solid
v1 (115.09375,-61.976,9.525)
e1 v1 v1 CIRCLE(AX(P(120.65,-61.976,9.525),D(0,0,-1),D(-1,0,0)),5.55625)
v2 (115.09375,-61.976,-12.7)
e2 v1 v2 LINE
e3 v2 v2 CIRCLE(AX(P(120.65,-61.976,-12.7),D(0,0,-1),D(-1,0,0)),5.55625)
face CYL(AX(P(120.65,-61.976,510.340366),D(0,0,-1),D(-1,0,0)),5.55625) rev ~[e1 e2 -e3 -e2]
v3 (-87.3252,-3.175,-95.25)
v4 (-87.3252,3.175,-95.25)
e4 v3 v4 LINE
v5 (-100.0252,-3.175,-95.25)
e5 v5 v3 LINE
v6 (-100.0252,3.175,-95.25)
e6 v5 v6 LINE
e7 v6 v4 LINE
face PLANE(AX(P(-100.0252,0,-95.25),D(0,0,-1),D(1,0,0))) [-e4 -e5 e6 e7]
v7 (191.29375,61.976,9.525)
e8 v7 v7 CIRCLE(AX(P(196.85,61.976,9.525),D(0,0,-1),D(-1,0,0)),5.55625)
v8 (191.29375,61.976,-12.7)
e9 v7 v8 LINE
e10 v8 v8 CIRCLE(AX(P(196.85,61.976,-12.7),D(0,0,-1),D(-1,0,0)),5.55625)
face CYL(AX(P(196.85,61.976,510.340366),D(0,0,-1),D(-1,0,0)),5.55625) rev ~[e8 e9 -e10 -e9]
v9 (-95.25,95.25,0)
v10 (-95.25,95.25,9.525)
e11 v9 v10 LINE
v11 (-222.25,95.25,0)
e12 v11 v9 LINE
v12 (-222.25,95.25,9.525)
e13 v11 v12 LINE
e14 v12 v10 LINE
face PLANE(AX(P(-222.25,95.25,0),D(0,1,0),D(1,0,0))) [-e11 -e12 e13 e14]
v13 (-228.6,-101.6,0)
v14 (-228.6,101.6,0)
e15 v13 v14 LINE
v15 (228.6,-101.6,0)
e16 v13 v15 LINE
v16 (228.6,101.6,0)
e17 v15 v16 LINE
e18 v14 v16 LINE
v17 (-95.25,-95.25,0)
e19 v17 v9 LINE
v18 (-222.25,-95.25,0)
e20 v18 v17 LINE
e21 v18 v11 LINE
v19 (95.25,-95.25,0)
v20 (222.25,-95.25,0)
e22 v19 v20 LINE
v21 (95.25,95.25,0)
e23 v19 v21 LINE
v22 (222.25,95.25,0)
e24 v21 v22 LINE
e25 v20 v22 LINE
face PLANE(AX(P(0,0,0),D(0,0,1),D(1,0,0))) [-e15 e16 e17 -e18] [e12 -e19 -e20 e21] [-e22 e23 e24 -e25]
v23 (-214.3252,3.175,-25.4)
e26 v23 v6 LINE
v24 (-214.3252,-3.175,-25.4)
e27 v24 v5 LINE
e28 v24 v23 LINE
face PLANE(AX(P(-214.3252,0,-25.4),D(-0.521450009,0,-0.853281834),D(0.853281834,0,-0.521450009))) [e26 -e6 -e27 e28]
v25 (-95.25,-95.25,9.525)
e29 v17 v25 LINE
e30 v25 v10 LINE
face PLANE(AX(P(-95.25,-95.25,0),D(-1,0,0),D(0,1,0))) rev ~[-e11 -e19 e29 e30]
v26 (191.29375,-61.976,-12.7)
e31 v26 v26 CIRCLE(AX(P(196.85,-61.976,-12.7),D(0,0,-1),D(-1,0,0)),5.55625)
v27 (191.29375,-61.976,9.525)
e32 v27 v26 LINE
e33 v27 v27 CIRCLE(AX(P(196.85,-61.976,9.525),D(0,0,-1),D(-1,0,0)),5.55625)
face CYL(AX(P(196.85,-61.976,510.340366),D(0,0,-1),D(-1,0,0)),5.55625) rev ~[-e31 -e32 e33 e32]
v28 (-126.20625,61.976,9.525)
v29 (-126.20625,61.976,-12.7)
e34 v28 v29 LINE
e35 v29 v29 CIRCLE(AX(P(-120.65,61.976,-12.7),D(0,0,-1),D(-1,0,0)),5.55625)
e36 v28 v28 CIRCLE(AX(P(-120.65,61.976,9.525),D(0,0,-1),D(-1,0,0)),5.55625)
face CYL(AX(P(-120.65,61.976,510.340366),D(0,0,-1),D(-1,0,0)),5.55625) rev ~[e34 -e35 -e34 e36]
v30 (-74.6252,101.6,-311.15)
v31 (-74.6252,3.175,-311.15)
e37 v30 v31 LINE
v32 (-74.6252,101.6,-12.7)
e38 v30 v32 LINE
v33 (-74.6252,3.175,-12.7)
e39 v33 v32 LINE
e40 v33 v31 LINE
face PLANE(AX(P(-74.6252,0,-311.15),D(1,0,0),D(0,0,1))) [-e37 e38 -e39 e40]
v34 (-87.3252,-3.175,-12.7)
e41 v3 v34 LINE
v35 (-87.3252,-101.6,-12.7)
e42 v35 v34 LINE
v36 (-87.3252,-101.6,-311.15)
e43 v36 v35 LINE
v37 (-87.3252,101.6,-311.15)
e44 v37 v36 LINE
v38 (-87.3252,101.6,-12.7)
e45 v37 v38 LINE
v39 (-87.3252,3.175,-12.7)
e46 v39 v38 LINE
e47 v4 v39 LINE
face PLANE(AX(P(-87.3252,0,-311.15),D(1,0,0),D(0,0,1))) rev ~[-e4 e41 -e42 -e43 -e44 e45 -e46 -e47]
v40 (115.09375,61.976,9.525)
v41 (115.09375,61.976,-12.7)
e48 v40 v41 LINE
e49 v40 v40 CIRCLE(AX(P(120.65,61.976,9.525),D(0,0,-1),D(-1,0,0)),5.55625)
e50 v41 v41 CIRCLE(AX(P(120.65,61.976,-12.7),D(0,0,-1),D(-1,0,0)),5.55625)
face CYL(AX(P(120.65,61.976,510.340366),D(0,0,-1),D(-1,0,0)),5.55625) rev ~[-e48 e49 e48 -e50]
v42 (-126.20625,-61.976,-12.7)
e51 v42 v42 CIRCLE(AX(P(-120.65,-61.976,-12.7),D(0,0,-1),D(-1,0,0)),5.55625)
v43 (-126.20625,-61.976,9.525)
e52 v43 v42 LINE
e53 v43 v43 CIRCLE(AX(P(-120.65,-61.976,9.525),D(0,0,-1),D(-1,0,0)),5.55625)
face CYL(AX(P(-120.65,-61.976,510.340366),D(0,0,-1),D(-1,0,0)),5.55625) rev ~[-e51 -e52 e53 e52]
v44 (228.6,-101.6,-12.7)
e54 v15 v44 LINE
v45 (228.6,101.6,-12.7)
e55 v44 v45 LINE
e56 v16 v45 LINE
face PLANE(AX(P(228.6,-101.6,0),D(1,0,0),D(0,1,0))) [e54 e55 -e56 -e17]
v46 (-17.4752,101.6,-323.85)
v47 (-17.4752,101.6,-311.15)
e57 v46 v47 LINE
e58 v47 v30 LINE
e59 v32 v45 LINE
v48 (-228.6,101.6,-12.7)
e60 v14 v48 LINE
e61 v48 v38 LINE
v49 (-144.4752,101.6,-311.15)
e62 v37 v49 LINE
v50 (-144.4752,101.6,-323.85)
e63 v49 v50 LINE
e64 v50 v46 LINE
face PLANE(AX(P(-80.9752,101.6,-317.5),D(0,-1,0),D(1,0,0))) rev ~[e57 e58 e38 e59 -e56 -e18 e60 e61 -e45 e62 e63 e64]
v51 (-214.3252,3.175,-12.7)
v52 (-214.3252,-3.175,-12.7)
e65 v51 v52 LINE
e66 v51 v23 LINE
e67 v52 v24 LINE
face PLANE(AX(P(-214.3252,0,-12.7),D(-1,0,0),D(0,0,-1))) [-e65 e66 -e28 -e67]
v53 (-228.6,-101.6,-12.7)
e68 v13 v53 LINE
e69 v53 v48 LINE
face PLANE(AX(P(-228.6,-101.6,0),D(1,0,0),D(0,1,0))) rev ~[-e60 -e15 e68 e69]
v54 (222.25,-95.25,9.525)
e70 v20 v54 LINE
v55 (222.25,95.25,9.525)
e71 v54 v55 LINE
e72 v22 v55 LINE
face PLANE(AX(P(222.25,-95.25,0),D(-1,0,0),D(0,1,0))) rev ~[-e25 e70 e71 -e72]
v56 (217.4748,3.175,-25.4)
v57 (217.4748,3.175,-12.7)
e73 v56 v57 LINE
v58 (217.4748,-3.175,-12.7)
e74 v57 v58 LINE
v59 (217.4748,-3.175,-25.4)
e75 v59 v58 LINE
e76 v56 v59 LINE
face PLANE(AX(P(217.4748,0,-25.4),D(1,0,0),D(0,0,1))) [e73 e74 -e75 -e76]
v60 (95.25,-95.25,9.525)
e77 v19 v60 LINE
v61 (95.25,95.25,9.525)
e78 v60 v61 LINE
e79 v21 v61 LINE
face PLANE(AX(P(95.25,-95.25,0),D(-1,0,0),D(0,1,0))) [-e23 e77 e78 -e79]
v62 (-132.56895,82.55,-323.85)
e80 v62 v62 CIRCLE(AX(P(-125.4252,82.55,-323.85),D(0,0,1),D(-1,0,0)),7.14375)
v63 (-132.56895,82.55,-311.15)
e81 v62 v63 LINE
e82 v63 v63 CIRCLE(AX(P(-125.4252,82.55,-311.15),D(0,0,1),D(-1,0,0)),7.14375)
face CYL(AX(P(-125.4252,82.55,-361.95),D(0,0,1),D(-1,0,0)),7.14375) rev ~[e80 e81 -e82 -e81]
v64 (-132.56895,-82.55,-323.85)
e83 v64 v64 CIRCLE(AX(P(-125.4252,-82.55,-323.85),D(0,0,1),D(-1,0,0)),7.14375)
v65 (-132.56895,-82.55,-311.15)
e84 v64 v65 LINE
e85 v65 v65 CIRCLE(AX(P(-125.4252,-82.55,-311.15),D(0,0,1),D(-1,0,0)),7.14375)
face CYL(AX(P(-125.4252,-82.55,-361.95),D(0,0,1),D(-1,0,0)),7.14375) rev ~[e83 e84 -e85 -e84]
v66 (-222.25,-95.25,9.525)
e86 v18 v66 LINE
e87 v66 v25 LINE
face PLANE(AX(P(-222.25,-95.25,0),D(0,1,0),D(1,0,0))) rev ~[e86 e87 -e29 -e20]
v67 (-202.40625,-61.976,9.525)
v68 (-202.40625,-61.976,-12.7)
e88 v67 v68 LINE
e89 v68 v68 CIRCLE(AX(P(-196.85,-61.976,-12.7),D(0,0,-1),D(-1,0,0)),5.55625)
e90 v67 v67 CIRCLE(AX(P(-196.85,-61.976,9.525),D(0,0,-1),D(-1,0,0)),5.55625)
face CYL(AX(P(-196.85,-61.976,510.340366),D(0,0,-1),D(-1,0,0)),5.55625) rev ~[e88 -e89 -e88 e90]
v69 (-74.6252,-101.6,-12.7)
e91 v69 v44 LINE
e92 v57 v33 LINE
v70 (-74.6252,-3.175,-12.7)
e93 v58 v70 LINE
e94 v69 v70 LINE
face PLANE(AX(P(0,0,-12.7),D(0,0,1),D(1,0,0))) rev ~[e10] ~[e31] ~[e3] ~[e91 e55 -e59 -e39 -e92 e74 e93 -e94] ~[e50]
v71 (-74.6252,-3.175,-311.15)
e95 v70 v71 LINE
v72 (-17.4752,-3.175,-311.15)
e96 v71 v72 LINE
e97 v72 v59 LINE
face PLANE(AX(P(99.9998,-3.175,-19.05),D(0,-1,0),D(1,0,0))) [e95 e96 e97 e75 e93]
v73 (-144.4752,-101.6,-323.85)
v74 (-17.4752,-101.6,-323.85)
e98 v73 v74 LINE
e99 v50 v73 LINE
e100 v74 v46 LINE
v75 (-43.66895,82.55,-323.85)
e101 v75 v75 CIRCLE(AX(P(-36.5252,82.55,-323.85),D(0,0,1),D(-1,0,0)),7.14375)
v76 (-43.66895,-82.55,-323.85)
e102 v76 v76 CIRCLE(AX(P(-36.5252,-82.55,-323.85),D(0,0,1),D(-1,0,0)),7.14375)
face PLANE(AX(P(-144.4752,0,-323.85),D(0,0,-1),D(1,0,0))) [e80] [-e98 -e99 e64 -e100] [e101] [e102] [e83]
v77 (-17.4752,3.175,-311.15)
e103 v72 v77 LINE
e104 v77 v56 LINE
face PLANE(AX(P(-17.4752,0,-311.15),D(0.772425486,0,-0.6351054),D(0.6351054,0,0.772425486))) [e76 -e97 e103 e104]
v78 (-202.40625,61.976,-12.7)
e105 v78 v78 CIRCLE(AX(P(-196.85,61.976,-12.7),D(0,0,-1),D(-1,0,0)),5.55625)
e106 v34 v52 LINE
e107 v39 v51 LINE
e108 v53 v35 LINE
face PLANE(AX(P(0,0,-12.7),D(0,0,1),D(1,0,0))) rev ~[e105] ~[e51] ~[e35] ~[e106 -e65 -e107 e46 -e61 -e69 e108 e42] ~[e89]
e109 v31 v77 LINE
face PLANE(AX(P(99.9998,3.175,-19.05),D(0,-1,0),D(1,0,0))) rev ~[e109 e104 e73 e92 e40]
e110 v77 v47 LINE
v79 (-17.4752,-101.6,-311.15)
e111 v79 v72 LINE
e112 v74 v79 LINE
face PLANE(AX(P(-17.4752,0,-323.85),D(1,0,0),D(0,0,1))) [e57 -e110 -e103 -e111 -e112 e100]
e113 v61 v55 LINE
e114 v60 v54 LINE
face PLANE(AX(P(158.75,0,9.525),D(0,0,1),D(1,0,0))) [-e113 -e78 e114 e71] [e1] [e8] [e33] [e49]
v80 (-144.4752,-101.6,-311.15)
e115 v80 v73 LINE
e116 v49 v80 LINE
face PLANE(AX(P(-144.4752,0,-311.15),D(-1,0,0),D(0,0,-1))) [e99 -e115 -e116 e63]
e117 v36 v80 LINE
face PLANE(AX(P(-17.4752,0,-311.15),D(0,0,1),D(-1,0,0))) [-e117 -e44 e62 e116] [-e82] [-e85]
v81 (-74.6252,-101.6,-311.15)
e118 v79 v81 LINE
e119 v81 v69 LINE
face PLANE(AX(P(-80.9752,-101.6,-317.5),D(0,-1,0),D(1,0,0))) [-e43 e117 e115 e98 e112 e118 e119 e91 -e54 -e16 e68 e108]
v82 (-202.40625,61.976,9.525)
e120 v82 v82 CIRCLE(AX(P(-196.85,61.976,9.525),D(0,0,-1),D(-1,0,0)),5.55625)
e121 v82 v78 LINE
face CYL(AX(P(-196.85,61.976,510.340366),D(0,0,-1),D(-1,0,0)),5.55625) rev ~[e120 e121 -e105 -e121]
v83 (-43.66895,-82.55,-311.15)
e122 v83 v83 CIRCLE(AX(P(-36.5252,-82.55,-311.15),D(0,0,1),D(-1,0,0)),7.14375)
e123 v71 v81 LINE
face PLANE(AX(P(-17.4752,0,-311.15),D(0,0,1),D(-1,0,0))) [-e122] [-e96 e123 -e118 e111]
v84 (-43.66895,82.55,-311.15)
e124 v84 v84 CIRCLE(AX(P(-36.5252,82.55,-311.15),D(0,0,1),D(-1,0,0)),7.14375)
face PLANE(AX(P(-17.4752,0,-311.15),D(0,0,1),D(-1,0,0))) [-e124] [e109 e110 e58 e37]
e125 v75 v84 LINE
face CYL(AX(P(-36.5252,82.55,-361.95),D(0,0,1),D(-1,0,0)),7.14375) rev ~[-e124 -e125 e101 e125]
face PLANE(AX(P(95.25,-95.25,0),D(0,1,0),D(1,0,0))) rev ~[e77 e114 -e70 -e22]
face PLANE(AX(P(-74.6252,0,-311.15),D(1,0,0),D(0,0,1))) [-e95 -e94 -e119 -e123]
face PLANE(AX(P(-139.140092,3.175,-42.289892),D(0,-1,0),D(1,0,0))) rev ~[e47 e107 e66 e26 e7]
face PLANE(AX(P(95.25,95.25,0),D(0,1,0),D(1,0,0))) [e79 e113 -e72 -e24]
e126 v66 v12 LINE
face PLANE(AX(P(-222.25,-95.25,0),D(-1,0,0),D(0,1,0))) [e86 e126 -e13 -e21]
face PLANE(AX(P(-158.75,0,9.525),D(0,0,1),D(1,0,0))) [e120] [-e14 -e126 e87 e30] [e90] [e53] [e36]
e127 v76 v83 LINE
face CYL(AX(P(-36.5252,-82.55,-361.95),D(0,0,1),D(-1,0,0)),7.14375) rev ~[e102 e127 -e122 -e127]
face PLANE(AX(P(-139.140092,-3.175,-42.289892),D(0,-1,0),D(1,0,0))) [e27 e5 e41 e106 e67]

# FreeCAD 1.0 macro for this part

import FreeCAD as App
import Part
import Sketcher
from FreeCAD import Vector
Q = App.Units.Quantity

doc = App.newDocument("Part")
body = doc.addObject("PartDesign::Body", "Body")

sketch1 = body.newObject("Sketcher::SketchObject", "Sketch")
sketch1.AttachmentSupport = (doc.getObject("XY_Plane"), [""])
sketch1.MapMode = "FlatFace"
sketch1.addGeometry([
    Part.LineSegment(Vector(-229, 102, 0), Vector(-229, -102, 0)),
    Part.LineSegment(Vector(-229, -102, 0), Vector(229, -102, 0)),
    Part.LineSegment(Vector(229, -102, 0), Vector(229, 102, 0)),
    Part.LineSegment(Vector(229, 102, 0), Vector(-229, 102, 0)),
], False)
sketch1.addConstraint([
    Sketcher.Constraint("Coincident", 0, 2, 1, 1),
    Sketcher.Constraint("Coincident", 1, 2, 2, 1),
    Sketcher.Constraint("Coincident", 2, 2, 3, 1),
    Sketcher.Constraint("Coincident", 3, 2, 0, 1),
    Sketcher.Constraint("Vertical", 0),
    Sketcher.Constraint("Horizontal", 1),
    Sketcher.Constraint("Vertical", 2),
    Sketcher.Constraint("Horizontal", 3),
    Sketcher.Constraint("Symmetric", 0, 2, 2, 2, -1, 1),
    Sketcher.Constraint("DistanceX", 1, 1, 1, 2, Q("18 in")),
    Sketcher.Constraint("DistanceY", 0, 2, 0, 1, Q("8 in")),
])
pad1 = body.newObject("PartDesign::Pad", "Pad")
pad1.Profile = sketch1
pad1.Length = Q("0.5 in")
pad1.Reversed = True

sketch2 = body.newObject("Sketcher::SketchObject", "Sketch001")
sketch2.AttachmentSupport = (doc.getObject("XY_Plane"), [""])
sketch2.MapMode = "FlatFace"
sketch2.addGeometry([
    Part.LineSegment(Vector(95, 95, 0), Vector(95, -95, 0)),
    Part.LineSegment(Vector(95, -95, 0), Vector(222, -95, 0)),
    Part.LineSegment(Vector(222, -95, 0), Vector(222, 95, 0)),
    Part.LineSegment(Vector(222, 95, 0), Vector(95, 95, 0)),
    Part.LineSegment(Vector(-222, 95, 0), Vector(-222, -95, 0)),
    Part.LineSegment(Vector(-222, -95, 0), Vector(-95, -95, 0)),
    Part.LineSegment(Vector(-95, -95, 0), Vector(-95, 95, 0)),
    Part.LineSegment(Vector(-95, 95, 0), Vector(-222, 95, 0)),
], False)
sketch2.addConstraint([
    Sketcher.Constraint("Coincident", 0, 2, 1, 1),
    Sketcher.Constraint("Coincident", 1, 2, 2, 1),
    Sketcher.Constraint("Coincident", 2, 2, 3, 1),
    Sketcher.Constraint("Coincident", 3, 2, 0, 1),
    Sketcher.Constraint("Coincident", 4, 2, 5, 1),
    Sketcher.Constraint("Coincident", 5, 2, 6, 1),
    Sketcher.Constraint("Coincident", 6, 2, 7, 1),
    Sketcher.Constraint("Coincident", 7, 2, 4, 1),
    Sketcher.Constraint("Vertical", 0),
    Sketcher.Constraint("Horizontal", 1),
    Sketcher.Constraint("Vertical", 2),
    Sketcher.Constraint("Horizontal", 3),
    Sketcher.Constraint("Vertical", 4),
    Sketcher.Constraint("Horizontal", 5),
    Sketcher.Constraint("Vertical", 6),
    Sketcher.Constraint("Horizontal", 7),
    Sketcher.Constraint("Symmetric", 2, 2, 4, 2, -1, 1),
    Sketcher.Constraint("Symmetric", 0, 2, 6, 2, -1, 1),
    Sketcher.Constraint("Horizontal", 1, 2, 4, 2),
    Sketcher.Constraint("DistanceX", 1, 1, 1, 2, Q("5 in")),
    Sketcher.Constraint("DistanceY", 0, 2, 0, 1, Q("7.5 in")),
    Sketcher.Constraint("DistanceX", 4, 2, 0, 2, Q("12.5 in")),
])
pad2 = body.newObject("PartDesign::Pad", "Pad001")
pad2.Profile = sketch2
pad2.Length = Q("0.375 in")

sketch3 = body.newObject("Sketcher::SketchObject", "Sketch002")
sketch3.AttachmentSupport = (doc.getObject("XY_Plane"), [""])
sketch3.MapMode = "FlatFace"
sketch3.AttachmentOffset = App.Placement(Vector(0, 0, 0.375 * 25.4), App.Rotation())
sketch3.addGeometry([
    Part.Circle(Vector(-197, 62, 0), Vector(0, 0, 1), 6),
    Part.Circle(Vector(-121, 62, 0), Vector(0, 0, 1), 6),
    Part.Circle(Vector(-197, -62, 0), Vector(0, 0, 1), 6),
    Part.Circle(Vector(-121, -62, 0), Vector(0, 0, 1), 6),
    Part.Circle(Vector(121, 62, 0), Vector(0, 0, 1), 6),
    Part.Circle(Vector(197, 62, 0), Vector(0, 0, 1), 6),
    Part.Circle(Vector(121, -62, 0), Vector(0, 0, 1), 6),
    Part.Circle(Vector(197, -62, 0), Vector(0, 0, 1), 6),
], False)
sketch3.addConstraint([
    Sketcher.Constraint("Equal", 0, 1),
    Sketcher.Constraint("Equal", 1, 2),
    Sketcher.Constraint("Equal", 2, 3),
    Sketcher.Constraint("Equal", 3, 4),
    Sketcher.Constraint("Equal", 4, 5),
    Sketcher.Constraint("Equal", 5, 6),
    Sketcher.Constraint("Equal", 6, 7),
    Sketcher.Constraint("Symmetric", 3, 3, 4, 3, -1, 1),
    Sketcher.Constraint("Symmetric", 2, 3, 5, 3, -1, 1),
    Sketcher.Constraint("Symmetric", 1, 3, 6, 3, -1, 1),
    Sketcher.Constraint("Symmetric", 0, 3, 7, 3, -1, 1),
    Sketcher.Constraint("Symmetric", 1, 3, 4, 3, -2),
    Sketcher.Constraint("Symmetric", 0, 3, 5, 3, -2),
    Sketcher.Constraint("Horizontal", 0, 3, 1, 3),
    Sketcher.Constraint("Diameter", 0, Q("0.4375 in")),
    Sketcher.Constraint("DistanceX", 0, 3, 1, 3, Q("3 in")),
    Sketcher.Constraint("DistanceX", 1, 3, 4, 3, Q("9.5 in")),
    Sketcher.Constraint("DistanceY", -1, 1, 0, 3, Q("2.44 in")),
])
doc.recompute()
hole = body.newObject("PartDesign::Hole", "Hole")
hole.Profile = sketch3
hole.ThreadType = "None"
hole.Diameter = Q("0.4375 in")
hole.DepthType = "ThroughAll"

sketch4 = body.newObject("Sketcher::SketchObject", "Sketch003")
sketch4.AttachmentSupport = (doc.getObject("XZ_Plane"), [""])
sketch4.MapMode = "FlatFace"
sketch4.addGeometry([
    Part.LineSegment(Vector(-87, -95, 0), Vector(-87, -13, 0)),
    Part.LineSegment(Vector(-87, -13, 0), Vector(-214, -13, 0)),
    Part.LineSegment(Vector(-214, -13, 0), Vector(-214, -25, 0)),
    Part.LineSegment(Vector(-214, -25, 0), Vector(-100, -95, 0)),
    Part.LineSegment(Vector(-100, -95, 0), Vector(-87, -95, 0)),
], False)
sketch4.addConstraint([
    Sketcher.Constraint("Coincident", 0, 2, 1, 1),
    Sketcher.Constraint("Coincident", 1, 2, 2, 1),
    Sketcher.Constraint("Coincident", 2, 2, 3, 1),
    Sketcher.Constraint("Coincident", 3, 2, 4, 1),
    Sketcher.Constraint("Coincident", 4, 2, 0, 1),
    Sketcher.Constraint("Vertical", 0),
    Sketcher.Constraint("Horizontal", 1),
    Sketcher.Constraint("Vertical", 2),
    Sketcher.Constraint("Horizontal", 4),
    Sketcher.Constraint("Equal", 4, 2),
    Sketcher.Constraint("DistanceX", 1, 2, 1, 1, Q("5 in")),
    Sketcher.Constraint("DistanceX", 4, 1, 4, 2, Q("0.5 in")),
    Sketcher.Constraint("DistanceY", 2, 2, -1, 1, Q("1 in")),
    Sketcher.Constraint("DistanceY", 0, 1, 0, 2, Q("3.25 in")),
    Sketcher.Constraint("DistanceX", 0, 2, -1, 1, Q("3.438 in")),
])
pad3 = body.newObject("PartDesign::Pad", "Pad002")
pad3.Profile = sketch4
pad3.Length = Q("0.25 in")
pad3.Midplane = True

sketch5 = body.newObject("Sketcher::SketchObject", "Sketch004")
sketch5.AttachmentSupport = (doc.getObject("XZ_Plane"), [""])
sketch5.MapMode = "FlatFace"
sketch5.addGeometry([
    Part.LineSegment(Vector(-17, -311, 0), Vector(217, -25, 0)),
    Part.LineSegment(Vector(217, -25, 0), Vector(217, -13, 0)),
    Part.LineSegment(Vector(217, -13, 0), Vector(-75, -13, 0)),
    Part.LineSegment(Vector(-75, -13, 0), Vector(-75, -311, 0)),
    Part.LineSegment(Vector(-75, -311, 0), Vector(-17, -311, 0)),
], False)
sketch5.addConstraint([
    Sketcher.Constraint("Coincident", 0, 2, 1, 1),
    Sketcher.Constraint("Coincident", 1, 2, 2, 1),
    Sketcher.Constraint("Coincident", 2, 2, 3, 1),
    Sketcher.Constraint("Coincident", 3, 2, 4, 1),
    Sketcher.Constraint("Coincident", 4, 2, 0, 1),
    Sketcher.Constraint("Vertical", 1),
    Sketcher.Constraint("Horizontal", 2),
    Sketcher.Constraint("Vertical", 3),
    Sketcher.Constraint("Horizontal", 4),
    Sketcher.Constraint("DistanceX", 2, 2, 2, 1, Q("11.5 in")),
    Sketcher.Constraint("DistanceY", 1, 1, 1, 2, Q("0.5 in")),
    Sketcher.Constraint("DistanceY", 0, 2, -1, 1, Q("1 in")),
    Sketcher.Constraint("DistanceX", 4, 1, 4, 2, Q("2.25 in")),
    Sketcher.Constraint("DistanceY", 3, 2, 3, 1, Q("11.75 in")),
    Sketcher.Constraint("DistanceX", -1, 1, 0, 2, Q("8.562 in")),
])
pad4 = body.newObject("PartDesign::Pad", "Pad003")
pad4.Profile = sketch5
pad4.Length = Q("0.25 in")
pad4.Midplane = True

sketch6 = body.newObject("Sketcher::SketchObject", "Sketch005")
sketch6.AttachmentSupport = (doc.getObject("XZ_Plane"), [""])
sketch6.MapMode = "FlatFace"
sketch6.addGeometry([
    Part.LineSegment(Vector(-87, -13, 0), Vector(-87, -311, 0)),
    Part.LineSegment(Vector(-87, -311, 0), Vector(-75, -311, 0)),
    Part.LineSegment(Vector(-75, -311, 0), Vector(-75, -13, 0)),
    Part.LineSegment(Vector(-75, -13, 0), Vector(-87, -13, 0)),
], False)
sketch6.addConstraint([
    Sketcher.Constraint("Coincident", 0, 2, 1, 1),
    Sketcher.Constraint("Coincident", 1, 2, 2, 1),
    Sketcher.Constraint("Coincident", 2, 2, 3, 1),
    Sketcher.Constraint("Coincident", 3, 2, 0, 1),
    Sketcher.Constraint("Vertical", 0),
    Sketcher.Constraint("Horizontal", 1),
    Sketcher.Constraint("Vertical", 2),
    Sketcher.Constraint("Horizontal", 3),
    Sketcher.Constraint("DistanceX", 1, 1, 1, 2, Q("0.5 in")),
    Sketcher.Constraint("DistanceY", 0, 2, 0, 1, Q("11.75 in")),
    Sketcher.Constraint("DistanceY", 2, 2, -1, 1, Q("0.5 in")),
    Sketcher.Constraint("DistanceX", 0, 2, -1, 1, Q("3.438 in")),
])
pad5 = body.newObject("PartDesign::Pad", "Pad004")
pad5.Profile = sketch6
pad5.Length = Q("8 in")
pad5.Midplane = True

sketch7 = body.newObject("Sketcher::SketchObject", "Sketch006")
sketch7.AttachmentSupport = (doc.getObject("XZ_Plane"), [""])
sketch7.MapMode = "FlatFace"
sketch7.addGeometry([
    Part.LineSegment(Vector(-17, -311, 0), Vector(-144, -311, 0)),
    Part.LineSegment(Vector(-144, -311, 0), Vector(-144, -324, 0)),
    Part.LineSegment(Vector(-144, -324, 0), Vector(-17, -324, 0)),
    Part.LineSegment(Vector(-17, -324, 0), Vector(-17, -311, 0)),
], False)
sketch7.addConstraint([
    Sketcher.Constraint("Coincident", 0, 2, 1, 1),
    Sketcher.Constraint("Coincident", 1, 2, 2, 1),
    Sketcher.Constraint("Coincident", 2, 2, 3, 1),
    Sketcher.Constraint("Coincident", 3, 2, 0, 1),
    Sketcher.Constraint("Horizontal", 0),
    Sketcher.Constraint("Vertical", 1),
    Sketcher.Constraint("Horizontal", 2),
    Sketcher.Constraint("Vertical", 3),
    Sketcher.Constraint("DistanceX", 0, 2, 0, 1, Q("5 in")),
    Sketcher.Constraint("DistanceY", 1, 2, 1, 1, Q("0.5 in")),
    Sketcher.Constraint("DistanceY", 0, 2, -1, 1, Q("12.25 in")),
    Sketcher.Constraint("DistanceX", 0, 2, -1, 1, Q("5.688 in")),
])
pad6 = body.newObject("PartDesign::Pad", "Pad005")
pad6.Profile = sketch7
pad6.Length = Q("8 in")
pad6.Midplane = True

sketch8 = body.newObject("Sketcher::SketchObject", "Sketch007")
sketch8.AttachmentSupport = (doc.getObject("XY_Plane"), [""])
sketch8.MapMode = "FlatFace"
sketch8.AttachmentOffset = App.Placement(Vector(0, 0, -12.75 * 25.4), App.Rotation())
sketch8.addGeometry([
    Part.Circle(Vector(-125, -83, 0), Vector(0, 0, 1), 7),
    Part.Circle(Vector(-125, 83, 0), Vector(0, 0, 1), 7),
    Part.Circle(Vector(-37, -83, 0), Vector(0, 0, 1), 7),
    Part.Circle(Vector(-37, 83, 0), Vector(0, 0, 1), 7),
], False)
sketch8.addConstraint([
    Sketcher.Constraint("Equal", 0, 1),
    Sketcher.Constraint("Equal", 1, 2),
    Sketcher.Constraint("Equal", 2, 3),
    Sketcher.Constraint("Symmetric", 0, 3, 1, 3, -1),
    Sketcher.Constraint("Symmetric", 2, 3, 3, 3, -1),
    Sketcher.Constraint("Horizontal", 0, 3, 2, 3),
    Sketcher.Constraint("Diameter", 0, Q("0.5625 in")),
    Sketcher.Constraint("DistanceY", 0, 3, 1, 3, Q("6.5 in")),
    Sketcher.Constraint("DistanceX", 0, 3, 2, 3, Q("3.5 in")),
    Sketcher.Constraint("DistanceX", 0, 3, -1, 1, Q("4.938 in")),
])
doc.recompute()
hole2 = body.newObject("PartDesign::Hole", "Hole001")
hole2.Profile = sketch8
hole2.ThreadType = "None"
hole2.Diameter = Q("0.5625 in")
hole2.DepthType = "Dimension"
hole2.Depth = Q("1.5 in")
hole2.DrillPoint = "Flat"
hole2.Reversed = True

doc.recompute()
